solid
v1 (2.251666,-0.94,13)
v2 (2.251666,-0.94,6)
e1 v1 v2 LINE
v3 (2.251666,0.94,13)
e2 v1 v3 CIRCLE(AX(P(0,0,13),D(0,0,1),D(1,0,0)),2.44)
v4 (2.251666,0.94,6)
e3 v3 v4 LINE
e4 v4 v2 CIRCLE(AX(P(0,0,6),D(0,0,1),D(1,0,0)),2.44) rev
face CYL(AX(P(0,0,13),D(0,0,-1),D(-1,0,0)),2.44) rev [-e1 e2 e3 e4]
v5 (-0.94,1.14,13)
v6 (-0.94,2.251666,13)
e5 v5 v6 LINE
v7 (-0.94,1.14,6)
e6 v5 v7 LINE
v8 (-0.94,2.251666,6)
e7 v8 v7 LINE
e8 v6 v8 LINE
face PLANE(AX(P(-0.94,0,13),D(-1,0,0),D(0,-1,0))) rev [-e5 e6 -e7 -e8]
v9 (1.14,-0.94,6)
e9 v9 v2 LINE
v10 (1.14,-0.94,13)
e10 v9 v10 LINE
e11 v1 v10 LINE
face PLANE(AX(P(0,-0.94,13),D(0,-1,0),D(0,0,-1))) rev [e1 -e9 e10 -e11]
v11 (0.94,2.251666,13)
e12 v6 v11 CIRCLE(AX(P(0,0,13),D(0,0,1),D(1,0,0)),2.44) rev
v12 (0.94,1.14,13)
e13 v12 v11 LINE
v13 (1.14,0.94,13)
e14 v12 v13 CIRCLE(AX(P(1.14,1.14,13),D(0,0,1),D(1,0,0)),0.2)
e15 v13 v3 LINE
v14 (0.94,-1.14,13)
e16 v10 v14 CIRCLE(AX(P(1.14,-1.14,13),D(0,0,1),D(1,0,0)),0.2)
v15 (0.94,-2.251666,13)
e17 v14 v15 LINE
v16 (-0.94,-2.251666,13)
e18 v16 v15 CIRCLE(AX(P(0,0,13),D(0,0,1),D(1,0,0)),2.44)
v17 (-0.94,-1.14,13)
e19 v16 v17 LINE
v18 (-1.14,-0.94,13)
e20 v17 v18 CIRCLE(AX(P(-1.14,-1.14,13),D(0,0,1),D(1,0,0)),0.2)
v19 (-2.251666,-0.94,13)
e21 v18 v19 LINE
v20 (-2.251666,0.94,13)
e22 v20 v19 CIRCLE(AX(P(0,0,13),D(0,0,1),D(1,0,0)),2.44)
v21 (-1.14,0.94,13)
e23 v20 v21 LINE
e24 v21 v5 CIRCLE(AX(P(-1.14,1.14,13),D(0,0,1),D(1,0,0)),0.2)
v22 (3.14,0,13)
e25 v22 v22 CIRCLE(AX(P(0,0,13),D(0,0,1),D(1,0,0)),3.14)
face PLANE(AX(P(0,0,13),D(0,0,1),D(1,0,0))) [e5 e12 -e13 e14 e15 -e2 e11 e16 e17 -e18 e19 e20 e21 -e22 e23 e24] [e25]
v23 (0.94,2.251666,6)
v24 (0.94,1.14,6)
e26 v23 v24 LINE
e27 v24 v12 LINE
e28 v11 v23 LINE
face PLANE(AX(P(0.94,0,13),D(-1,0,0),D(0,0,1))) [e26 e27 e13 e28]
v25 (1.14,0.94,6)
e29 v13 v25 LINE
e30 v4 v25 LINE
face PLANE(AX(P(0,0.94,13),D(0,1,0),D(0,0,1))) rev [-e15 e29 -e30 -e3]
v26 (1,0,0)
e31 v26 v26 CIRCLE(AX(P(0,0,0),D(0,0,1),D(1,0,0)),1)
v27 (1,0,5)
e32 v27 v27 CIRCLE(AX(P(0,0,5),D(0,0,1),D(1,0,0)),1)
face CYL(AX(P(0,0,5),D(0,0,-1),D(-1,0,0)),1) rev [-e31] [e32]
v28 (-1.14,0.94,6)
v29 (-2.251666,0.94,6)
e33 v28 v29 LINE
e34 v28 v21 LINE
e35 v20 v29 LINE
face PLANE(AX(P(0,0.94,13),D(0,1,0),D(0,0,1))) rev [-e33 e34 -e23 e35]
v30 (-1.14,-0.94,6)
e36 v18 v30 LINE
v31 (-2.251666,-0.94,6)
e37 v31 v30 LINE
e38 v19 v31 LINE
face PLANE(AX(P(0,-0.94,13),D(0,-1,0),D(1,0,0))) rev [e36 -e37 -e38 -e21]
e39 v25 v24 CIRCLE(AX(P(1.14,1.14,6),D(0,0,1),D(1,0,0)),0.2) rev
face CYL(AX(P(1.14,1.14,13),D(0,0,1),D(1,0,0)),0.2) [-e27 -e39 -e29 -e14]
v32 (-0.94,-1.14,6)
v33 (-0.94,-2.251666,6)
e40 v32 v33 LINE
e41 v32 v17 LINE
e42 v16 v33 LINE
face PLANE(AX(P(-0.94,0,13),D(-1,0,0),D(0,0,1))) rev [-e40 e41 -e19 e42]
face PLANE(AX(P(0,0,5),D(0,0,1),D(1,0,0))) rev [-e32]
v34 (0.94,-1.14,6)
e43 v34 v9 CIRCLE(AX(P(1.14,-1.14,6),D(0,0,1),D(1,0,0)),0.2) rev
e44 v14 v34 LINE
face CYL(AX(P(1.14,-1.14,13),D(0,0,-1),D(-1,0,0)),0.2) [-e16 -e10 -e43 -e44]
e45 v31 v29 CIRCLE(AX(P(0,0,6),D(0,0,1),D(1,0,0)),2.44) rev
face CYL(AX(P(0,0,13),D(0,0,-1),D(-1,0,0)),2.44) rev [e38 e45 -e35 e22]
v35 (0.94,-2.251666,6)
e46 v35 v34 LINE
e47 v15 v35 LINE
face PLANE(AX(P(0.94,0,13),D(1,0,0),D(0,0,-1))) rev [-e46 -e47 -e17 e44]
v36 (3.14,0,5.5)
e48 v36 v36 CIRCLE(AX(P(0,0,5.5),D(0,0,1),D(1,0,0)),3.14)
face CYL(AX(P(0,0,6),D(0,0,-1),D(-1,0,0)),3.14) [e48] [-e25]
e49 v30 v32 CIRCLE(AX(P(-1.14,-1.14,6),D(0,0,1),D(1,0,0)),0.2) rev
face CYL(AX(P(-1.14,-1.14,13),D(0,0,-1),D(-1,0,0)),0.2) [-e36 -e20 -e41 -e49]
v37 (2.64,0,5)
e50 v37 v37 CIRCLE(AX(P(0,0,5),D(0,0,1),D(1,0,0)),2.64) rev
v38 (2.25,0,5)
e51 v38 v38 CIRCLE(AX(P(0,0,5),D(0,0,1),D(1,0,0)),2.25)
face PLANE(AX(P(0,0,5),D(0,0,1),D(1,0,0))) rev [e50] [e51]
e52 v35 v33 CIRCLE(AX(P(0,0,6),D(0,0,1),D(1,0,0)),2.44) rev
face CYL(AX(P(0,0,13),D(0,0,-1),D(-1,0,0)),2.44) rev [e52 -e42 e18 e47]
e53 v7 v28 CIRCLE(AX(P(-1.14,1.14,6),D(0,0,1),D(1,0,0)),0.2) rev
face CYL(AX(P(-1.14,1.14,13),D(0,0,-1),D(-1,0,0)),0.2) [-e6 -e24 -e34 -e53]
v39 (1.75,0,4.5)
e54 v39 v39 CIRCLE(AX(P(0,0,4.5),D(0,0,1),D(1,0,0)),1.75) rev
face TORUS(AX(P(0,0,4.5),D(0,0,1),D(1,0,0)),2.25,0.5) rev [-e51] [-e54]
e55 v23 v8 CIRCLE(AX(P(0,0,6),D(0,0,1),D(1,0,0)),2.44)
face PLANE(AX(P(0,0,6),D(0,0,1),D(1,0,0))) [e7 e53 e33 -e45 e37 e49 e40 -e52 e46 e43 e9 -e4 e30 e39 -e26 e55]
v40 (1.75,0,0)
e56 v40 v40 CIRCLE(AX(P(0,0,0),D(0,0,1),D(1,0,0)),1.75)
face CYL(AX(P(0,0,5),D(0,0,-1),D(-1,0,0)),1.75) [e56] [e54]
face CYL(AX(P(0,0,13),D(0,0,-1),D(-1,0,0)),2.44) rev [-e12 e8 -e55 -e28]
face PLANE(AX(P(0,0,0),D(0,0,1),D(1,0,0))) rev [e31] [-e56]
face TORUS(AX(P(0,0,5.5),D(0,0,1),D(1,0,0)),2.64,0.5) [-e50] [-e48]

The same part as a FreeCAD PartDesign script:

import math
import FreeCAD as App
import Part
import Sketcher
from FreeCAD import Vector
Q = App.Units.Quantity


def edges_at(feature, points):
    """Names of the edges that pass closest to the given points."""
    edges = feature.Shape.Edges
    near = lambda p: min(range(len(edges)), key=lambda i: edges[i].distToShape(Part.Vertex(*p))[0])
    return sorted({f"Edge{near(p) + 1}" for p in points})

doc = App.newDocument("Part")
body = doc.addObject("PartDesign::Body", "Body")

# Sketch on XY plane
sketch1 = body.newObject("Sketcher::SketchObject", "Sketch")
sketch1.AttachmentSupport = (doc.getObject("XY_Plane"), [""])
sketch1.MapMode = "FlatFace"
sketch1.addGeometry(Part.Circle(Vector(0, 0, 0), Vector(0, 0, 1), 1.75), False)
sketch1.addGeometry(Part.Circle(Vector(0, 0, 0), Vector(0, 0, 1), 1), False)
sketch1.addConstraint(Sketcher.Constraint("Coincident", 0, 3, -1, 1))
sketch1.addConstraint(Sketcher.Constraint("Coincident", 1, 3, -1, 1))
sketch1.addConstraint(Sketcher.Constraint("Diameter", 1, Q("2 mm")))
sketch1.addConstraint(Sketcher.Constraint("Diameter", 0, Q("3.5 mm")))
pad1 = body.newObject("PartDesign::Pad", "Pad")
pad1.Profile = sketch1
pad1.Length = 5

# Sketch on XY plane
sketch2 = body.newObject("Sketcher::SketchObject", "Sketch001")
sketch2.AttachmentSupport = (doc.getObject("XY_Plane"), [""])
sketch2.MapMode = "FlatFace"
sketch2.AttachmentOffset = App.Placement(Vector(0, 0, 5), App.Rotation())
sketch2.addGeometry(Part.Circle(Vector(0, 0, 0), Vector(0, 0, 1), 3.14), False)
sketch2.addConstraint(Sketcher.Constraint("Coincident", 0, 3, -1, 1))
sketch2.addConstraint(Sketcher.Constraint("Diameter", 0, Q("6.28 mm")))
pad2 = body.newObject("PartDesign::Pad", "Pad001")
pad2.Profile = sketch2
pad2.Length = 1

# Sketch on XY plane
sketch3 = body.newObject("Sketcher::SketchObject", "Sketch002")
sketch3.AttachmentSupport = (doc.getObject("XY_Plane"), [""])
sketch3.MapMode = "FlatFace"
sketch3.AttachmentOffset = App.Placement(Vector(0, 0, 5), App.Rotation())
sketch3.addGeometry(Part.Circle(Vector(0, 0, 0), Vector(0, 0, 1), 3.14), False)
sketch3.addGeometry(Part.LineSegment(Vector(0.94, 2.251666, 0), Vector(0.94, 0.94, 0)), False)
sketch3.addGeometry(Part.LineSegment(Vector(0.94, 0.94, 0), Vector(2.251666, 0.94, 0)), False)
sketch3.addGeometry(Part.ArcOfCircle(Part.Circle(Vector(0, 0, 0), Vector(0, 0, 1), 2.44), math.radians(-22.659007), math.radians(22.659007)), False)
sketch3.addGeometry(Part.LineSegment(Vector(2.251666, -0.94, 0), Vector(0.94, -0.94, 0)), False)
sketch3.addGeometry(Part.LineSegment(Vector(0.94, -0.94, 0), Vector(0.94, -2.251666, 0)), False)
sketch3.addGeometry(Part.ArcOfCircle(Part.Circle(Vector(0, 0, 0), Vector(0, 0, 1), 2.44), math.radians(-112.659007), math.radians(-67.340993)), False)
sketch3.addGeometry(Part.LineSegment(Vector(-0.94, -2.251666, 0), Vector(-0.94, -0.94, 0)), False)
sketch3.addGeometry(Part.LineSegment(Vector(-0.94, -0.94, 0), Vector(-2.251666, -0.94, 0)), False)
sketch3.addGeometry(Part.ArcOfCircle(Part.Circle(Vector(0, 0, 0), Vector(0, 0, 1), 2.44), math.radians(157.340993), math.radians(202.659007)), False)
sketch3.addGeometry(Part.LineSegment(Vector(-2.251666, 0.94, 0), Vector(-0.94, 0.94, 0)), False)
sketch3.addGeometry(Part.LineSegment(Vector(-0.94, 0.94, 0), Vector(-0.94, 2.251666, 0)), False)
sketch3.addGeometry(Part.ArcOfCircle(Part.Circle(Vector(0, 0, 0), Vector(0, 0, 1), 2.44), math.radians(67.340993), math.radians(112.659007)), False)
sketch3.addConstraint(Sketcher.Constraint("Coincident", 1, 2, 2, 1))
sketch3.addConstraint(Sketcher.Constraint("Coincident", 2, 2, 3, 2))
sketch3.addConstraint(Sketcher.Constraint("Coincident", 3, 1, 4, 1))
sketch3.addConstraint(Sketcher.Constraint("Coincident", 4, 2, 5, 1))
sketch3.addConstraint(Sketcher.Constraint("Coincident", 5, 2, 6, 2))
sketch3.addConstraint(Sketcher.Constraint("Coincident", 6, 1, 7, 1))
sketch3.addConstraint(Sketcher.Constraint("Coincident", 7, 2, 8, 1))
sketch3.addConstraint(Sketcher.Constraint("Coincident", 8, 2, 9, 2))
sketch3.addConstraint(Sketcher.Constraint("Coincident", 9, 1, 10, 1))
sketch3.addConstraint(Sketcher.Constraint("Coincident", 10, 2, 11, 1))
sketch3.addConstraint(Sketcher.Constraint("Coincident", 11, 2, 12, 2))
sketch3.addConstraint(Sketcher.Constraint("Coincident", 12, 1, 1, 1))
sketch3.addConstraint(Sketcher.Constraint("Vertical", 1))
sketch3.addConstraint(Sketcher.Constraint("Horizontal", 2))
sketch3.addConstraint(Sketcher.Constraint("Horizontal", 4))
sketch3.addConstraint(Sketcher.Constraint("Vertical", 5))
sketch3.addConstraint(Sketcher.Constraint("Vertical", 7))
sketch3.addConstraint(Sketcher.Constraint("Horizontal", 8))
sketch3.addConstraint(Sketcher.Constraint("Horizontal", 10))
sketch3.addConstraint(Sketcher.Constraint("Vertical", 11))
sketch3.addConstraint(Sketcher.Constraint("Coincident", 0, 3, -1, 1))
sketch3.addConstraint(Sketcher.Constraint("Coincident", 3, 3, -1, 1))
sketch3.addConstraint(Sketcher.Constraint("Coincident", 6, 3, -1, 1))
sketch3.addConstraint(Sketcher.Constraint("Coincident", 9, 3, -1, 1))
sketch3.addConstraint(Sketcher.Constraint("Coincident", 12, 3, -1, 1))
sketch3.addConstraint(Sketcher.Constraint("Equal", 3, 6))
sketch3.addConstraint(Sketcher.Constraint("Equal", 6, 9))
sketch3.addConstraint(Sketcher.Constraint("Equal", 9, 12))
sketch3.addConstraint(Sketcher.Constraint("Symmetric", 1, 2, 7, 2, -1, 1))
sketch3.addConstraint(Sketcher.Constraint("Symmetric", 4, 2, 10, 2, -1, 1))
sketch3.addConstraint(Sketcher.Constraint("Symmetric", 4, 2, 7, 2, -2))
sketch3.addConstraint(Sketcher.Constraint("Equal", 10, 1))
sketch3.addConstraint(Sketcher.Constraint("Diameter", 0, Q("6.28 mm")))
sketch3.addConstraint(Sketcher.Constraint("Radius", 3, Q("2.44 mm")))
sketch3.addConstraint(Sketcher.Constraint("DistanceX", -1, 1, 1, 2, Q("0.94 mm")))
pad3 = body.newObject("PartDesign::Pad", "Pad002")
pad3.Profile = sketch3
pad3.Length = 8
doc.recompute()

fillet = body.newObject("PartDesign::Fillet", "Fillet")
fillet.Base = (pad3, edges_at(pad3, [(-3.14, 0, 5), (-1.75, 0, 5)]))
fillet.Radius = 0.5
doc.recompute()

fillet2 = body.newObject("PartDesign::Fillet", "Fillet001")
fillet2.Base = (fillet, edges_at(fillet, [
    (-0.94, -0.94, 9.5),
    (-0.94, 0.94, 9.5),
    (0.94, 0.94, 9.5),
    (0.94, -0.94, 9.5),
]))
fillet2.Radius = 0.2

doc.recompute()
